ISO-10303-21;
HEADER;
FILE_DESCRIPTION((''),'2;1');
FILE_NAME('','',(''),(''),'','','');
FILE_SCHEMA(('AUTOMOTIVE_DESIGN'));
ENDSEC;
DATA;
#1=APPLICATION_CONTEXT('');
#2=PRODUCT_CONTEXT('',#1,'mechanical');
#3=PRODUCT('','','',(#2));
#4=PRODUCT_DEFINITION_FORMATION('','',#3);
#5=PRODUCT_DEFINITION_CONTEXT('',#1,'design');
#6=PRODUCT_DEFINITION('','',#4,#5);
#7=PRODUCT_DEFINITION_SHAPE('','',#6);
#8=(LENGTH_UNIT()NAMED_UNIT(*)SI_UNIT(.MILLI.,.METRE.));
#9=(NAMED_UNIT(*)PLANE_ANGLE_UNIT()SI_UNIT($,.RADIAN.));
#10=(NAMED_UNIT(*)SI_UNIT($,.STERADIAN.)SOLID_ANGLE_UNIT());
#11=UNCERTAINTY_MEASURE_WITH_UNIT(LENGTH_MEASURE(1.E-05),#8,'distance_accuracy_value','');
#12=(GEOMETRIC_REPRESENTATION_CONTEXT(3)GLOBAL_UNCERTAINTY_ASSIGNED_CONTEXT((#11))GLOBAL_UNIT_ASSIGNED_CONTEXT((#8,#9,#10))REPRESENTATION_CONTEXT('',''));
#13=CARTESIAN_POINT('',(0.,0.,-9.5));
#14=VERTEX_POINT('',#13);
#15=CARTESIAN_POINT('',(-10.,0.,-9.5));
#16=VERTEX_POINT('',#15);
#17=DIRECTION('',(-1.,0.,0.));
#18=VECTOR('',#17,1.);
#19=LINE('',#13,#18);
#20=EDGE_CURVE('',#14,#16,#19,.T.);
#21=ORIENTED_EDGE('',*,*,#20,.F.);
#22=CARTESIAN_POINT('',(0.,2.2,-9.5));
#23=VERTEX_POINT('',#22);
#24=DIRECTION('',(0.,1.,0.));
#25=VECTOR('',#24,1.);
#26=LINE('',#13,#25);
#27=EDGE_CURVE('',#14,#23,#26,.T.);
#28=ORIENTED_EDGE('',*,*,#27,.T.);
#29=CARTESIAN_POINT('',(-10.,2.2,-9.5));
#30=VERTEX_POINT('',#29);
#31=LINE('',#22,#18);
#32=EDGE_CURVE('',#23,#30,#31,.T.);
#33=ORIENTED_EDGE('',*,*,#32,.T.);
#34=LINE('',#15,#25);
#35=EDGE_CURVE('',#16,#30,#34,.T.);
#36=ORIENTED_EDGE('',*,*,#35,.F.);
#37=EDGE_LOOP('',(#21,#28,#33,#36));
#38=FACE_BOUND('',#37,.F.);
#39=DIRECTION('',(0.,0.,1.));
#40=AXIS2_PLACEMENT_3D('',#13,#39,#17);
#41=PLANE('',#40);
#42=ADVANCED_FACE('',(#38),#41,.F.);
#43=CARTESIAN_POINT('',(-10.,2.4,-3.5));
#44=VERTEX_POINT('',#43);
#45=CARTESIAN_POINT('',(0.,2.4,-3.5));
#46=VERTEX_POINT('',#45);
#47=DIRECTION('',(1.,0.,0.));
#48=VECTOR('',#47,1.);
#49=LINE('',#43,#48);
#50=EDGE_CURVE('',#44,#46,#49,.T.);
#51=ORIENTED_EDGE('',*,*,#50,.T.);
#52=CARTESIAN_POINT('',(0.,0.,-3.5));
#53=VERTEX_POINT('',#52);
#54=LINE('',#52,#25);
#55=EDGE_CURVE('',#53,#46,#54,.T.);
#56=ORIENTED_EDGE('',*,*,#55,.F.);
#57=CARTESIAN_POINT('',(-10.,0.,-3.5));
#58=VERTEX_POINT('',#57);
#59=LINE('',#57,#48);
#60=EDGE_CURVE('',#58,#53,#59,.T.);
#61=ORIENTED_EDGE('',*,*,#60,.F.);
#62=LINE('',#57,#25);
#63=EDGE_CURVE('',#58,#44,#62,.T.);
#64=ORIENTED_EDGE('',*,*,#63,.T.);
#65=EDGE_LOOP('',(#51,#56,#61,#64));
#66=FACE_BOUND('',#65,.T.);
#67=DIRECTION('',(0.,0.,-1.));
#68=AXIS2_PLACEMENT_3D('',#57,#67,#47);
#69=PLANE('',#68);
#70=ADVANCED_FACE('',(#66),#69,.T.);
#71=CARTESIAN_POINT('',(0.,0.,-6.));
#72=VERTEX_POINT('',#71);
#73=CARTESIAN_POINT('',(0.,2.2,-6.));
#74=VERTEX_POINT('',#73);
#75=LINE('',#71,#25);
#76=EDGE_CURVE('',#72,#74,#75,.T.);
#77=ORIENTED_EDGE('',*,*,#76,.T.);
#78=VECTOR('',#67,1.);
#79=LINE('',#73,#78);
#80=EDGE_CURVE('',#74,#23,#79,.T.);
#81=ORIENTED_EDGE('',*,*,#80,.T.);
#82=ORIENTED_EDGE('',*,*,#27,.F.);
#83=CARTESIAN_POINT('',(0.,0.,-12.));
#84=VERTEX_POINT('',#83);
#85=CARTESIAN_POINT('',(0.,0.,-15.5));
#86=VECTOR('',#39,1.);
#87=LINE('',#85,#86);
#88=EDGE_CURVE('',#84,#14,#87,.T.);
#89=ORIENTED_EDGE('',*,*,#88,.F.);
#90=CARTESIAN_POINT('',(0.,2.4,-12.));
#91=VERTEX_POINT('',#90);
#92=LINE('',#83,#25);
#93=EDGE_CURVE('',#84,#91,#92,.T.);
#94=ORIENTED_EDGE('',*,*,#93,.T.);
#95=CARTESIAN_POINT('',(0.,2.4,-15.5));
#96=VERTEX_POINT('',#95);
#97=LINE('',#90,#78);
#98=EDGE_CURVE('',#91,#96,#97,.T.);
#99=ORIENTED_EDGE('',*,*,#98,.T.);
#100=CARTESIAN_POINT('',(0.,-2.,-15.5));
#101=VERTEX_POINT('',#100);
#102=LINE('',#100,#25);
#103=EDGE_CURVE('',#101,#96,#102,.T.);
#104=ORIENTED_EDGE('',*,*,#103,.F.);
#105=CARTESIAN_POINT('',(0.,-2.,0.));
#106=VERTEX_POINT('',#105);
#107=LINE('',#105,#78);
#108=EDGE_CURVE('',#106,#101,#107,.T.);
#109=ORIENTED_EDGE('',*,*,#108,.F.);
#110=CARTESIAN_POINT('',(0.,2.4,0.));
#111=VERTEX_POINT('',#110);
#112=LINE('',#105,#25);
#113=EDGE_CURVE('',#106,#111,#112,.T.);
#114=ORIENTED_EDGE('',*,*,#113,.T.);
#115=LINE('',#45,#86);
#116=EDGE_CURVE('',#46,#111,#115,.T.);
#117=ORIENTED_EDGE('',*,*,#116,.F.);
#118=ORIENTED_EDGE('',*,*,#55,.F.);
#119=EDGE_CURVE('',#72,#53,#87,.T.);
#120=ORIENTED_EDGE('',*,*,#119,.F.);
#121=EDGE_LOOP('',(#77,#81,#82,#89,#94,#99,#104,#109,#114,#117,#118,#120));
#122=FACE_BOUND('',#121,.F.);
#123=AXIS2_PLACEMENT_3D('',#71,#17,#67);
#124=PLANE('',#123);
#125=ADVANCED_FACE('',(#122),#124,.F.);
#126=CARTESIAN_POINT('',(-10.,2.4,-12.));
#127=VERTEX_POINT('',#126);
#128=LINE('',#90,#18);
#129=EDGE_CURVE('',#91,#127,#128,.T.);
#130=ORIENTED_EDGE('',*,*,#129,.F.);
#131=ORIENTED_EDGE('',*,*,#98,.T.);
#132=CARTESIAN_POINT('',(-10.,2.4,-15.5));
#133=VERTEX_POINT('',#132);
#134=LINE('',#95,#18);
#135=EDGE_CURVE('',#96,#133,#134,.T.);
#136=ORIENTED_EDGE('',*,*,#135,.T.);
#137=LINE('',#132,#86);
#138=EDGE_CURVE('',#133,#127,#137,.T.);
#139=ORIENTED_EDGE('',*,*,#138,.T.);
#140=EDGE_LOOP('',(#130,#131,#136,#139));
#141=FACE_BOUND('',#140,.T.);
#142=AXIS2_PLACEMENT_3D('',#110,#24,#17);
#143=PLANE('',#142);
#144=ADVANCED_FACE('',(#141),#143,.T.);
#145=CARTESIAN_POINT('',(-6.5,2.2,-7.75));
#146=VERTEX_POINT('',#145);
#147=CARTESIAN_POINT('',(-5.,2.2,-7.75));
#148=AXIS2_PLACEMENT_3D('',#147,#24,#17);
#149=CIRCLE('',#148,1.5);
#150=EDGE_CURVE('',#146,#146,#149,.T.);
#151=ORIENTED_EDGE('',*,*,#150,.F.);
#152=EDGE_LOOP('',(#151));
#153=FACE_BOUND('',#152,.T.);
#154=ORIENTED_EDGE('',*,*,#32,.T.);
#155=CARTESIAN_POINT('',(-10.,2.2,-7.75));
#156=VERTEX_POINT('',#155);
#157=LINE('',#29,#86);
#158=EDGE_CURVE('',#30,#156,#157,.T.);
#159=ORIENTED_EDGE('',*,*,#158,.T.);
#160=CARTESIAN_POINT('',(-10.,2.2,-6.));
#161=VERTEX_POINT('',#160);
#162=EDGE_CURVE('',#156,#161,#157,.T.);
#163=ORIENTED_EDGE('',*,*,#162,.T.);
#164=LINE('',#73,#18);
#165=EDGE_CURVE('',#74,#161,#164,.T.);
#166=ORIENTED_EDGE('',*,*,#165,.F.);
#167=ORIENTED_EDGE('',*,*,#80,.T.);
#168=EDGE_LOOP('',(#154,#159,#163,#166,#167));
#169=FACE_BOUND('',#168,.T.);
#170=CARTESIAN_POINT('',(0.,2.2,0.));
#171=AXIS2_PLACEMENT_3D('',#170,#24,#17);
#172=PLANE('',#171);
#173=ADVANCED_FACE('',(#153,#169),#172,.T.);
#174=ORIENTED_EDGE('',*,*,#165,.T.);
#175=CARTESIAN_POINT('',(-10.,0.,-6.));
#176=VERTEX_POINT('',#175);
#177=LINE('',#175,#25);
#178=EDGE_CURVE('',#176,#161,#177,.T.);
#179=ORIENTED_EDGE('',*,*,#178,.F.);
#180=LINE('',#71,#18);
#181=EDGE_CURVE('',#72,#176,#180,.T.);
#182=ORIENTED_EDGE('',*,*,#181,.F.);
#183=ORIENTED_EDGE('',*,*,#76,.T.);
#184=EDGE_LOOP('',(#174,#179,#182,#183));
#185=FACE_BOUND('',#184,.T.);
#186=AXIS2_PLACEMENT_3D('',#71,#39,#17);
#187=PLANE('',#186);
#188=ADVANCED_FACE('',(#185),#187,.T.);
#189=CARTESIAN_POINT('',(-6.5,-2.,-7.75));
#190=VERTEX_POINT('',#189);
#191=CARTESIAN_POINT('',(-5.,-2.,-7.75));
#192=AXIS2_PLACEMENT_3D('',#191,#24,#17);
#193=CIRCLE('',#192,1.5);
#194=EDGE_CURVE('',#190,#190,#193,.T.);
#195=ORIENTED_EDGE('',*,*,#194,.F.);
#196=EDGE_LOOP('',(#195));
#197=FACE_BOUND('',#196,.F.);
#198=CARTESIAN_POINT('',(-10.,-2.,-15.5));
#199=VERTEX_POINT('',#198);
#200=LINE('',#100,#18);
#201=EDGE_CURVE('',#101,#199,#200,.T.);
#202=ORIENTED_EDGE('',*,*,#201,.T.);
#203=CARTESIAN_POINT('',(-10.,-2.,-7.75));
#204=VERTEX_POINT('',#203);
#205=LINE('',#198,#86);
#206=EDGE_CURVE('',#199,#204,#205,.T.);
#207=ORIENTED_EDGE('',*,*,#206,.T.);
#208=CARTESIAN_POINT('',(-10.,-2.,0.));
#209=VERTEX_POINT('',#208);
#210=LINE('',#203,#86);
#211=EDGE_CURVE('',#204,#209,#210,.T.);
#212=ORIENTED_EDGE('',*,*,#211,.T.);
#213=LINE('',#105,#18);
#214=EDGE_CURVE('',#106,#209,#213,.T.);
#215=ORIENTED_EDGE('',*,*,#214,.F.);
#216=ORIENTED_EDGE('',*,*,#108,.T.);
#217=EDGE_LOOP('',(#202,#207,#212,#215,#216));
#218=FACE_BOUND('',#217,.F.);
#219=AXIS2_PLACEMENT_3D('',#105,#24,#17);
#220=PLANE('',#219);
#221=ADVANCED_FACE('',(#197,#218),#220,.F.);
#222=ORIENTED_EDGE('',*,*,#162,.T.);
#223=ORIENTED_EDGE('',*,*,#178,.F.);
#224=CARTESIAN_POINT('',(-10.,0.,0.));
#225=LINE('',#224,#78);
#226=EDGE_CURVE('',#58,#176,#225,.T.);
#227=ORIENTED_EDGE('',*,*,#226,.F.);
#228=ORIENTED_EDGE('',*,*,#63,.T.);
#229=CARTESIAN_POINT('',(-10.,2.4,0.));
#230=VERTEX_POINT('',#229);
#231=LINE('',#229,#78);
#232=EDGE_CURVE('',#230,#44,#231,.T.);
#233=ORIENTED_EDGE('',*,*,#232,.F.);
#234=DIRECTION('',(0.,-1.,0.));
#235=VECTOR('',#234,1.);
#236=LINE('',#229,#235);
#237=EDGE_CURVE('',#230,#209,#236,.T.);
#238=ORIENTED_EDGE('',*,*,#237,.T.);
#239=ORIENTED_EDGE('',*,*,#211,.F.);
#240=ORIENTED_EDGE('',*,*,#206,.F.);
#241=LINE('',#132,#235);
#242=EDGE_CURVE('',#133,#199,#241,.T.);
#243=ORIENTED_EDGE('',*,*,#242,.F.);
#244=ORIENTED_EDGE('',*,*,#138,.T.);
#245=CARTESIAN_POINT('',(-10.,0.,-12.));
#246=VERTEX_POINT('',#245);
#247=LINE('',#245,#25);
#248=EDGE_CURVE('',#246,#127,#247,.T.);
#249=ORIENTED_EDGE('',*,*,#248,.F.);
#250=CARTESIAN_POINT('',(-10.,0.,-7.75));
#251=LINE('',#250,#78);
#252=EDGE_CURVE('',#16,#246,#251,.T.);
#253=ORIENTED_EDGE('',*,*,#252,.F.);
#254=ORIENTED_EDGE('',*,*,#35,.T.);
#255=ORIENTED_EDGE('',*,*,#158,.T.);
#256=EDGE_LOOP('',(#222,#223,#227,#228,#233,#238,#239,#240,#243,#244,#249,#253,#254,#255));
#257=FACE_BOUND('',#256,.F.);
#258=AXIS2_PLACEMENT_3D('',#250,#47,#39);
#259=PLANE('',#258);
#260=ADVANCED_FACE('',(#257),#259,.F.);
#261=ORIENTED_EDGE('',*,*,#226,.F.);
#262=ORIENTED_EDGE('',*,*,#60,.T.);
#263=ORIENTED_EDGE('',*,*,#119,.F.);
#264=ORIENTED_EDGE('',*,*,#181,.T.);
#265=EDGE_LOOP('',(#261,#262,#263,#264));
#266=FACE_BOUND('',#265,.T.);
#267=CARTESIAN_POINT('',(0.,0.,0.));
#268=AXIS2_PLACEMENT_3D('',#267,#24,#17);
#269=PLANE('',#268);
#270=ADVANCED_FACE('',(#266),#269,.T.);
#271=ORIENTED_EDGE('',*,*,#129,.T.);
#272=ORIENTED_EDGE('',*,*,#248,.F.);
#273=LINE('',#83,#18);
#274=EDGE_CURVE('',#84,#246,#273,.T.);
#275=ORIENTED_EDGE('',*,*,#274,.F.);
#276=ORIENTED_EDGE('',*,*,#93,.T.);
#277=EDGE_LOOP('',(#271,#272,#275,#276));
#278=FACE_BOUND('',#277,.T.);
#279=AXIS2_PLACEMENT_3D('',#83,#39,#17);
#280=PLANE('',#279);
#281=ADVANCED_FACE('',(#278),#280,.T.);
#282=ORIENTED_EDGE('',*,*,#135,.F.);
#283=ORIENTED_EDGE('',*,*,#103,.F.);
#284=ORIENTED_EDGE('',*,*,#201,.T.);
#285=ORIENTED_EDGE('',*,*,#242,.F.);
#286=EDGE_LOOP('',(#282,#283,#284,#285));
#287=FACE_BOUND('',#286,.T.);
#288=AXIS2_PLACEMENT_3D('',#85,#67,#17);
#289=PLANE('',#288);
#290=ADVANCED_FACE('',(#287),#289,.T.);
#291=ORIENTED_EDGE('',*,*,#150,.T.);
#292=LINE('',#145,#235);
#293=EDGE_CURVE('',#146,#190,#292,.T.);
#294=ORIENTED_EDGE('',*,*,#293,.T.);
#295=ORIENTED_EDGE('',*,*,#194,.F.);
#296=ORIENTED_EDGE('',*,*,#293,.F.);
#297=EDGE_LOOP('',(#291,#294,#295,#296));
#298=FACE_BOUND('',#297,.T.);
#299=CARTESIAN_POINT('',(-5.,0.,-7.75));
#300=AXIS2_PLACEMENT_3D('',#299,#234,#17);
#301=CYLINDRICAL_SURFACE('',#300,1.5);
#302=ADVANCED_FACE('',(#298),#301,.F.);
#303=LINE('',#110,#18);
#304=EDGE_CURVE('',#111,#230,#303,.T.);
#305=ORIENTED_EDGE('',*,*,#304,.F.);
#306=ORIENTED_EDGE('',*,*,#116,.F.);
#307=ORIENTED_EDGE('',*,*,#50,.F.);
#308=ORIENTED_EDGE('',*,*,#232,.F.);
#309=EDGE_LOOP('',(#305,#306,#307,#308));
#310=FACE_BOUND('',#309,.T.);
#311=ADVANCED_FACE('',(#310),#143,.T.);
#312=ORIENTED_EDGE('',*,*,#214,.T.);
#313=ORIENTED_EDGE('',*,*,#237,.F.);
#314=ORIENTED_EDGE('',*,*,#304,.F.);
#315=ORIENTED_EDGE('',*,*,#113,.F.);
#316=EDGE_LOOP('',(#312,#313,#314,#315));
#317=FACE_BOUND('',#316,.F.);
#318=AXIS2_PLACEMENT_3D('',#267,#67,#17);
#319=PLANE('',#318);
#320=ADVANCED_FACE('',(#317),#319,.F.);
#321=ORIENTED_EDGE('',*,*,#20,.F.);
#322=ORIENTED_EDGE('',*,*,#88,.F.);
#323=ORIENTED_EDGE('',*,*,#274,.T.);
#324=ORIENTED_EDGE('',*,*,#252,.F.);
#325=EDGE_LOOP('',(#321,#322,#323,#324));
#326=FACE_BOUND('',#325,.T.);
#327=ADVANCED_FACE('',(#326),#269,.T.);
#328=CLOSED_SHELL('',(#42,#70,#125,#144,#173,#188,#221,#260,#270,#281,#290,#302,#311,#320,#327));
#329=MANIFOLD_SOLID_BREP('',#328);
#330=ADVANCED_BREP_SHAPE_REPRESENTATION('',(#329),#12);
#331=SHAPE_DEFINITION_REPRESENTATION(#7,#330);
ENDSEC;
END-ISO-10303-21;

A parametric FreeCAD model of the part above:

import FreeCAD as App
import Part
import Sketcher

V = App.Vector
Q = App.Units.Quantity

doc = App.newDocument("Part")
body = doc.addObject("PartDesign::Body", "Body")

sketch1 = body.newObject("Sketcher::SketchObject", "Sketch")
sketch1.AttachmentSupport = (doc.getObject("XZ_Plane"), [""])
sketch1.MapMode = "FlatFace"
sketch1.addGeometry(Part.LineSegment(V(-10, 0, 0), V(0, 0, 0)), False)
sketch1.addGeometry(Part.LineSegment(V(0, 0, 0), V(0, -15.5, 0)), False)
sketch1.addGeometry(Part.LineSegment(V(0, -15.5, 0), V(-10, -15.5, 0)), False)
sketch1.addGeometry(Part.LineSegment(V(-10, -15.5, 0), V(-10, -7.8, 0)), False)
sketch1.addGeometry(Part.LineSegment(V(-10, -7.8, 0), V(-10, 0, 0)), False)
sketch1.addGeometry(Part.Circle(V(-5, -7.8, 0), V(0, 0, 1), 1.5), False)
sketch1.addConstraint(Sketcher.Constraint("Coincident", 0, 2, 1, 1))
sketch1.addConstraint(Sketcher.Constraint("Coincident", 1, 2, 2, 1))
sketch1.addConstraint(Sketcher.Constraint("Coincident", 2, 2, 3, 1))
sketch1.addConstraint(Sketcher.Constraint("Coincident", 3, 2, 4, 1))
sketch1.addConstraint(Sketcher.Constraint("Coincident", 4, 2, 0, 1))
sketch1.addConstraint(Sketcher.Constraint("Horizontal", 0))
sketch1.addConstraint(Sketcher.Constraint("Vertical", 1))
sketch1.addConstraint(Sketcher.Constraint("Horizontal", 2))
sketch1.addConstraint(Sketcher.Constraint("Vertical", 3))
sketch1.addConstraint(Sketcher.Constraint("Vertical", 4))
sketch1.addConstraint(Sketcher.Constraint("Coincident", 0, 2, -1, 1))
sketch1.addConstraint(Sketcher.Constraint("Horizontal", 5, 3, 3, 2))
sketch1.addConstraint(Sketcher.Constraint("Equal", 3, 4))
sketch1.addConstraint(Sketcher.Constraint("Diameter", 5, Q("3 mm")))
sketch1.addConstraint(Sketcher.Constraint("DistanceX", 0, 1, 0, 2, Q("10 mm")))
sketch1.addConstraint(Sketcher.Constraint("DistanceX", 5, 3, -1, 1, Q("5 mm")))
sketch1.addConstraint(Sketcher.Constraint("DistanceY", 1, 2, 1, 1, Q("15.5 mm")))
pad1 = body.newObject("PartDesign::Pad", "Pad")
pad1.Profile = sketch1
pad1.Length = 2

sketch2 = body.newObject("Sketcher::SketchObject", "Sketch001")
sketch2.AttachmentSupport = (doc.getObject("XZ_Plane"), [""])
sketch2.MapMode = "FlatFace"
sketch2.addGeometry(Part.LineSegment(V(-10, 0, 0), V(0, 0, 0)), False)
sketch2.addGeometry(Part.LineSegment(V(0, 0, 0), V(0, -3.5, 0)), False)
sketch2.addGeometry(Part.LineSegment(V(0, -3.5, 0), V(-10, -3.5, 0)), False)
sketch2.addGeometry(Part.LineSegment(V(-10, -3.5, 0), V(-10, 0, 0)), False)
sketch2.addGeometry(Part.LineSegment(V(-10, -12, 0), V(0, -12, 0)), False)
sketch2.addGeometry(Part.LineSegment(V(0, -12, 0), V(0, -15.5, 0)), False)
sketch2.addGeometry(Part.LineSegment(V(0, -15.5, 0), V(-10, -15.5, 0)), False)
sketch2.addGeometry(Part.LineSegment(V(-10, -15.5, 0), V(-10, -12, 0)), False)
sketch2.addConstraint(Sketcher.Constraint("Coincident", 0, 2, 1, 1))
sketch2.addConstraint(Sketcher.Constraint("Coincident", 1, 2, 2, 1))
sketch2.addConstraint(Sketcher.Constraint("Coincident", 2, 2, 3, 1))
sketch2.addConstraint(Sketcher.Constraint("Coincident", 3, 2, 0, 1))
sketch2.addConstraint(Sketcher.Constraint("Coincident", 4, 2, 5, 1))
sketch2.addConstraint(Sketcher.Constraint("Coincident", 5, 2, 6, 1))
sketch2.addConstraint(Sketcher.Constraint("Coincident", 6, 2, 7, 1))
sketch2.addConstraint(Sketcher.Constraint("Coincident", 7, 2, 4, 1))
sketch2.addConstraint(Sketcher.Constraint("Horizontal", 0))
sketch2.addConstraint(Sketcher.Constraint("Vertical", 1))
sketch2.addConstraint(Sketcher.Constraint("Horizontal", 2))
sketch2.addConstraint(Sketcher.Constraint("Vertical", 3))
sketch2.addConstraint(Sketcher.Constraint("Horizontal", 4))
sketch2.addConstraint(Sketcher.Constraint("Vertical", 5))
sketch2.addConstraint(Sketcher.Constraint("Horizontal", 6))
sketch2.addConstraint(Sketcher.Constraint("Vertical", 7))
sketch2.addConstraint(Sketcher.Constraint("Coincident", 0, 2, -1, 1))
sketch2.addConstraint(Sketcher.Constraint("PointOnObject", 4, 2, -2))
sketch2.addConstraint(Sketcher.Constraint("Vertical", 3, 2, 6, 2))
sketch2.addConstraint(Sketcher.Constraint("Equal", 3, 5))
sketch2.addConstraint(Sketcher.Constraint("DistanceX", 0, 1, 0, 2, Q("10 mm")))
sketch2.addConstraint(Sketcher.Constraint("DistanceY", 1, 2, 1, 1, Q("3.5 mm")))
sketch2.addConstraint(Sketcher.Constraint("DistanceY", 4, 2, -1, 1, Q("12 mm")))
pad2 = body.newObject("PartDesign::Pad", "Pad001")
pad2.Profile = sketch2
pad2.Length = 2.4
pad2.Reversed = True

sketch3 = body.newObject("Sketcher::SketchObject", "Sketch002")
sketch3.AttachmentSupport = (doc.getObject("XZ_Plane"), [""])
sketch3.MapMode = "FlatFace"
sketch3.addGeometry(Part.LineSegment(V(-10, -6, 0), V(0, -6, 0)), False)
sketch3.addGeometry(Part.LineSegment(V(0, -6, 0), V(0, -9.5, 0)), False)
sketch3.addGeometry(Part.LineSegment(V(0, -9.5, 0), V(-10, -9.5, 0)), False)
sketch3.addGeometry(Part.LineSegment(V(-10, -9.5, 0), V(-10, -7.8, 0)), False)
sketch3.addGeometry(Part.LineSegment(V(-10, -7.8, 0), V(-10, -6, 0)), False)
sketch3.addGeometry(Part.Circle(V(-5, -7.8, 0), V(0, 0, 1), 1.5), False)
sketch3.addConstraint(Sketcher.Constraint("Coincident", 0, 2, 1, 1))
sketch3.addConstraint(Sketcher.Constraint("Coincident", 1, 2, 2, 1))
sketch3.addConstraint(Sketcher.Constraint("Coincident", 2, 2, 3, 1))
sketch3.addConstraint(Sketcher.Constraint("Coincident", 3, 2, 4, 1))
sketch3.addConstraint(Sketcher.Constraint("Coincident", 4, 2, 0, 1))
sketch3.addConstraint(Sketcher.Constraint("Horizontal", 0))
sketch3.addConstraint(Sketcher.Constraint("Vertical", 1))
sketch3.addConstraint(Sketcher.Constraint("Horizontal", 2))
sketch3.addConstraint(Sketcher.Constraint("Vertical", 3))
sketch3.addConstraint(Sketcher.Constraint("Vertical", 4))
sketch3.addConstraint(Sketcher.Constraint("PointOnObject", 0, 2, -2))
sketch3.addConstraint(Sketcher.Constraint("Horizontal", 5, 3, 3, 2))
sketch3.addConstraint(Sketcher.Constraint("Equal", 3, 4))
sketch3.addConstraint(Sketcher.Constraint("Diameter", 5, Q("3 mm")))
sketch3.addConstraint(Sketcher.Constraint("DistanceX", 0, 1, 0, 2, Q("10 mm")))
sketch3.addConstraint(Sketcher.Constraint("DistanceY", 1, 2, 1, 1, Q("3.5 mm")))
sketch3.addConstraint(Sketcher.Constraint("DistanceX", 5, 3, -1, 1, Q("5 mm")))
sketch3.addConstraint(Sketcher.Constraint("DistanceY", 0, 2, -1, 1, Q("6 mm")))
pad3 = body.newObject("PartDesign::Pad", "Pad002")
pad3.Profile = sketch3
pad3.Length = 2.2
pad3.Reversed = True

doc.recompute()
